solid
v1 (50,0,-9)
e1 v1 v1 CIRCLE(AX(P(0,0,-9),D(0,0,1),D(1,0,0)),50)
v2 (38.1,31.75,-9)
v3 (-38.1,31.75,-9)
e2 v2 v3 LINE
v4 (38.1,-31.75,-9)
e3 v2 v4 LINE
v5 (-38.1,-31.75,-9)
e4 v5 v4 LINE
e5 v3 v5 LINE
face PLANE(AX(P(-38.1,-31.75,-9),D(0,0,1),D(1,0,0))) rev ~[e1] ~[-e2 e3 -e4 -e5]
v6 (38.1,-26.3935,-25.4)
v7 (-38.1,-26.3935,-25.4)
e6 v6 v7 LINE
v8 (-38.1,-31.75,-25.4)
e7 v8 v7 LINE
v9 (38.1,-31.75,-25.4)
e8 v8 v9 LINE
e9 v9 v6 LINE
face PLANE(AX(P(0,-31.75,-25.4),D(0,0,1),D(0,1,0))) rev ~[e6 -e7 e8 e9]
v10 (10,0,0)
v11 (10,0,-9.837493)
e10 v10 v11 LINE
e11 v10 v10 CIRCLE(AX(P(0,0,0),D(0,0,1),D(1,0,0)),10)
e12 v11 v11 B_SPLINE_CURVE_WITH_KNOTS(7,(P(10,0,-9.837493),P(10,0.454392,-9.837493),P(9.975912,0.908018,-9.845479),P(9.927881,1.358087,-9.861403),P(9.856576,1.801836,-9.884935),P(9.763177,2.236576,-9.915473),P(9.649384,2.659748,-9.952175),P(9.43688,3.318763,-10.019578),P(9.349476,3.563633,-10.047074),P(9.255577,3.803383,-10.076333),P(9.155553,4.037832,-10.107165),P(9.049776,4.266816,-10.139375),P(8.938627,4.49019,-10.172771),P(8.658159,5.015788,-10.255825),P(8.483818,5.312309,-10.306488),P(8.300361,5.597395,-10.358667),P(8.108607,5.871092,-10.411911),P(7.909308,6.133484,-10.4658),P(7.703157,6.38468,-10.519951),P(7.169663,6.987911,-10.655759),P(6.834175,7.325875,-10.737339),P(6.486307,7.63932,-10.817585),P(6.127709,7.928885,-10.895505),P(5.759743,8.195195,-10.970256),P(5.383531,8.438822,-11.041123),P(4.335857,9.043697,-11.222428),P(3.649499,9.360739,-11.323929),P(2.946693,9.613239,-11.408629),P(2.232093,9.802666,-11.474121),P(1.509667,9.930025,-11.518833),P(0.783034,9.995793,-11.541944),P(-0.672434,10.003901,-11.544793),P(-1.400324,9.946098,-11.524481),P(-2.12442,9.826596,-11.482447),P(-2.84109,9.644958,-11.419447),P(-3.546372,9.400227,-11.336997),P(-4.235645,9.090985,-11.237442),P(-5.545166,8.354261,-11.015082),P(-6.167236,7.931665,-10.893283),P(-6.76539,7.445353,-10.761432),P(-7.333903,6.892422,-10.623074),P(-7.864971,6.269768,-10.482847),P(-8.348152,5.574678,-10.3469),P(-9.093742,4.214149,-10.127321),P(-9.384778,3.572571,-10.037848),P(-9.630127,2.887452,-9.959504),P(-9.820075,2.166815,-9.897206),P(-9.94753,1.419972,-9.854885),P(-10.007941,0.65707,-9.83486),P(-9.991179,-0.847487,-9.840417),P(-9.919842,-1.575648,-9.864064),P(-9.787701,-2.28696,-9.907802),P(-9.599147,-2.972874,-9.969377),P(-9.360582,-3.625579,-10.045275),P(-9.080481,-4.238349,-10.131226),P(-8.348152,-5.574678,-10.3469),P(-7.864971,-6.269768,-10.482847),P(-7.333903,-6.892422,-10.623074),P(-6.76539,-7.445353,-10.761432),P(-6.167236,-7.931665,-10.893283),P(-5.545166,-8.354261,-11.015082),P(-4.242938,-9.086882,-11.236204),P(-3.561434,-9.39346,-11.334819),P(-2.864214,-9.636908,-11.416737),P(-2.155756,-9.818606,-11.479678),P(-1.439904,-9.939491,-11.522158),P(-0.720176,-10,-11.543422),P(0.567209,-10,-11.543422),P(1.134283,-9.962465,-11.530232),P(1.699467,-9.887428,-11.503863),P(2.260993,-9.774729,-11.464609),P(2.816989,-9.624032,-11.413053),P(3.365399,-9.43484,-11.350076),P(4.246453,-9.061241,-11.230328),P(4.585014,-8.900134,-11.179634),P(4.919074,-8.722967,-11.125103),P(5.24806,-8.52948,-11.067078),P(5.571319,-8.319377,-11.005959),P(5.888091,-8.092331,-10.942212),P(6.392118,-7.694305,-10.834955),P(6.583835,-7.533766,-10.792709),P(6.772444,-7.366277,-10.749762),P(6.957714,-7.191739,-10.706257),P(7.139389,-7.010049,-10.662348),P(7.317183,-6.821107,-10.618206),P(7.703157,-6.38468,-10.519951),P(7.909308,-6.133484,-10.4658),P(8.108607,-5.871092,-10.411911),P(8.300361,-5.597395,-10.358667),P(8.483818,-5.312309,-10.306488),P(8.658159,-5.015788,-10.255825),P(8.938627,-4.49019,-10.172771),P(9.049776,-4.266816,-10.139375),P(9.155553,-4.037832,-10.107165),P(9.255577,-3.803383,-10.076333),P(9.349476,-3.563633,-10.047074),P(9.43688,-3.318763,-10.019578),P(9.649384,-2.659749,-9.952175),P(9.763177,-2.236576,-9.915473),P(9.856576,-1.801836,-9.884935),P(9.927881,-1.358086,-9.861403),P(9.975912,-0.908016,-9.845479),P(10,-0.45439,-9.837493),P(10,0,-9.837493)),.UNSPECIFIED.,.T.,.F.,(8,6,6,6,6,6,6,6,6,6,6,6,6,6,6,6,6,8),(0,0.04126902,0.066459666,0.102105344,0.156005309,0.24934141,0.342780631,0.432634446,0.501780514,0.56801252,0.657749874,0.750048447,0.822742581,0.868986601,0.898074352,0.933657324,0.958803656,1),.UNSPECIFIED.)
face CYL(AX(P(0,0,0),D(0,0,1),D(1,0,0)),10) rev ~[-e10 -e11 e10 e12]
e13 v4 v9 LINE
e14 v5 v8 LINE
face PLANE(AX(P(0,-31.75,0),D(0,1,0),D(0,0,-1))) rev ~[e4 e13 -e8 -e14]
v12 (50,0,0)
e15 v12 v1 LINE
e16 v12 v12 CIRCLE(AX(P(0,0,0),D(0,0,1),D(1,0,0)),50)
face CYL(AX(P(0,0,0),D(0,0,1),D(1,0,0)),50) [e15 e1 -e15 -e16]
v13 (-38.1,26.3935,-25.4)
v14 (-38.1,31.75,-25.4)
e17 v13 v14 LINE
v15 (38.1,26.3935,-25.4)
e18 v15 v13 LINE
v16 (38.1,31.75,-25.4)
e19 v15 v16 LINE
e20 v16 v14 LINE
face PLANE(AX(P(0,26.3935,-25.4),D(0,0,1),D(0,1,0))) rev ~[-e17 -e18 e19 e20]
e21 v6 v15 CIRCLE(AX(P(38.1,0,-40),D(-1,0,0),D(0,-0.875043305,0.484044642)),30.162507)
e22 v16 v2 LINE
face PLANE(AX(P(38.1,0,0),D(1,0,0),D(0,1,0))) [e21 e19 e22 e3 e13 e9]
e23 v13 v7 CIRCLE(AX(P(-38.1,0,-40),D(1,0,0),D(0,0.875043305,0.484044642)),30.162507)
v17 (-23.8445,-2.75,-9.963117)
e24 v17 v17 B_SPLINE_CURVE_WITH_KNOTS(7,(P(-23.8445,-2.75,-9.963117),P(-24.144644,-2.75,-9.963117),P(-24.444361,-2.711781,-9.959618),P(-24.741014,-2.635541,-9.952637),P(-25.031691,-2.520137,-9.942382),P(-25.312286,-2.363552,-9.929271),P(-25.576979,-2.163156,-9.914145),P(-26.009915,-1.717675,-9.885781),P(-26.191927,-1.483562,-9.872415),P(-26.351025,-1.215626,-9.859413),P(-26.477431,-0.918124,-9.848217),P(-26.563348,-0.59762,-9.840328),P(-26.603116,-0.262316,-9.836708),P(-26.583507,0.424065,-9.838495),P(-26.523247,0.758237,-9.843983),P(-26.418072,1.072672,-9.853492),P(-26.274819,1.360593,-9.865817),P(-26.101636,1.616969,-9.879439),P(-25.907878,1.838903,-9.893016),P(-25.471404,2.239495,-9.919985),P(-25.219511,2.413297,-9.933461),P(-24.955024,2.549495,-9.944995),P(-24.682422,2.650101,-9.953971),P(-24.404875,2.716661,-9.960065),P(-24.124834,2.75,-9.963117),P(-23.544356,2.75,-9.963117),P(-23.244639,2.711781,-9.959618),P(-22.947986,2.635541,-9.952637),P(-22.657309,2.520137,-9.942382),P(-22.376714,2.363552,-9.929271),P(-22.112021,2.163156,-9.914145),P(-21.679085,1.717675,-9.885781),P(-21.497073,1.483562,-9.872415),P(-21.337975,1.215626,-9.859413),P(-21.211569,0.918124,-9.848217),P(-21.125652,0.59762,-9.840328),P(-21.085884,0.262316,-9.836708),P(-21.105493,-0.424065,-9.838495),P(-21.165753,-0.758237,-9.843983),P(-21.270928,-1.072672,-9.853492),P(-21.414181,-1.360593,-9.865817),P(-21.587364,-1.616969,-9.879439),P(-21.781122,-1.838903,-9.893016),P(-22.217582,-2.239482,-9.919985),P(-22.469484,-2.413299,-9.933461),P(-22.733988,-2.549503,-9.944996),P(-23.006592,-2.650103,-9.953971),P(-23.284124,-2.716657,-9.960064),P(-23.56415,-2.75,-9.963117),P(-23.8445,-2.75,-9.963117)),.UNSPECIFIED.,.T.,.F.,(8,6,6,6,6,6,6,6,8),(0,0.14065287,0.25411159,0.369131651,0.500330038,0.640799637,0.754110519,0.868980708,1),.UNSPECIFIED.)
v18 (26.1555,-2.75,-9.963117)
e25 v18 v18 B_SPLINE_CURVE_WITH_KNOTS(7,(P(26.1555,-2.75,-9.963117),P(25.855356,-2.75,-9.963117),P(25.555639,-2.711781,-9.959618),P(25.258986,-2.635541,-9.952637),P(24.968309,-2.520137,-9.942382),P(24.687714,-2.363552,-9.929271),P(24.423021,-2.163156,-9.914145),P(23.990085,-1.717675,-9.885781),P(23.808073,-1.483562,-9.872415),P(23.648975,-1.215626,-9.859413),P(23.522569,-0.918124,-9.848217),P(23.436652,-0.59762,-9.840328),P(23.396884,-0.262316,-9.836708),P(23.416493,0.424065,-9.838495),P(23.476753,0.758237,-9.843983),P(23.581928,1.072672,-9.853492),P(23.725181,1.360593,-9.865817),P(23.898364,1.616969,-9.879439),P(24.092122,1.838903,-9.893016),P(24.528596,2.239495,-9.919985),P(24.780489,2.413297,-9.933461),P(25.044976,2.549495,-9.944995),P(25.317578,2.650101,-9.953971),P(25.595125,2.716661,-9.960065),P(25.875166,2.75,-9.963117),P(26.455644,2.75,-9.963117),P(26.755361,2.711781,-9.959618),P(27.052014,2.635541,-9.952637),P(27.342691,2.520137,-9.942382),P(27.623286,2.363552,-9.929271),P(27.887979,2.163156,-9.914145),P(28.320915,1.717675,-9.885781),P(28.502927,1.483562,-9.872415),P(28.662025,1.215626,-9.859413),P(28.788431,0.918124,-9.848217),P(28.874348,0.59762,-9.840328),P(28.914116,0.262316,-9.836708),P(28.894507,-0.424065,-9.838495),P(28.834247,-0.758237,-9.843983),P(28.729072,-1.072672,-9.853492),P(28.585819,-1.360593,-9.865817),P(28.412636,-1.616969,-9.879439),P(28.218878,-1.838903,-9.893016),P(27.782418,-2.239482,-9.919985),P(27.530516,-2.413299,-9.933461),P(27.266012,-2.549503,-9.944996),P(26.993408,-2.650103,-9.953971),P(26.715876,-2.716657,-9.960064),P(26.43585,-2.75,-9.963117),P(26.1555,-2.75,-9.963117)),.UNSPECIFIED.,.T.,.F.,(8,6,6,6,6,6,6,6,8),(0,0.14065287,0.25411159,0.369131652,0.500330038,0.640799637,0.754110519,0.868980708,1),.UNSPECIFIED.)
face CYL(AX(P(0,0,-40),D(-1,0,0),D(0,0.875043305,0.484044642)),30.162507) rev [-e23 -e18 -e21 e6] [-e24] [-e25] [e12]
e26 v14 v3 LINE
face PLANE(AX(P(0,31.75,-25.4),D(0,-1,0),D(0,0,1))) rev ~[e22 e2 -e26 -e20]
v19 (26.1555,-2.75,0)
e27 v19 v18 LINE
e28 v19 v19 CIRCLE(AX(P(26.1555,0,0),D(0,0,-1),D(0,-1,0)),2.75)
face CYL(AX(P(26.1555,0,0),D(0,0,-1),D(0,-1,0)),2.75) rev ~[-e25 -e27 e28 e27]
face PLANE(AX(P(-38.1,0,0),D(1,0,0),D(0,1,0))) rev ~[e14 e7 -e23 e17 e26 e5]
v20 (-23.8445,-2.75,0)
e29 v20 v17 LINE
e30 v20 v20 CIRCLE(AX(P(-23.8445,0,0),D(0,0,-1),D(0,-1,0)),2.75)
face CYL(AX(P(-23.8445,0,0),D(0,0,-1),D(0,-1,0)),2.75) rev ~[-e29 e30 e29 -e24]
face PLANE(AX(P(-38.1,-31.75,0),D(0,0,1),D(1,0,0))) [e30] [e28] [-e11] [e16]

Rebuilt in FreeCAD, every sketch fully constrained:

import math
import FreeCAD as App
import Part
import Sketcher
Q = App.Units.Quantity

doc = App.newDocument("Part")
body = doc.addObject("PartDesign::Body", "Body")

# Sketch on YZ plane
sketch1 = body.newObject("Sketcher::SketchObject", "Sketch")
sketch1.AttachmentSupport = (doc.getObject("YZ_Plane"), [""])
sketch1.MapMode = "FlatFace"
sketch1.addGeometry(Part.LineSegment(App.Vector(32, -25, 0), App.Vector(32, 0, 0)), False)
sketch1.addGeometry(Part.LineSegment(App.Vector(32, 0, 0), App.Vector(-32, 0, 0)), False)
sketch1.addGeometry(Part.LineSegment(App.Vector(-32, 0, 0), App.Vector(-32, -25, 0)), False)
sketch1.addGeometry(Part.LineSegment(App.Vector(-32, -25, 0), App.Vector(-26, -25, 0)), False)
sketch1.addGeometry(Part.ArcOfCircle(Part.Circle(App.Vector(0, -40, 0), App.Vector(0, 0, 1), 30), math.radians(29), math.radians(151)), False)
sketch1.addGeometry(Part.LineSegment(App.Vector(26, -25, 0), App.Vector(32, -25, 0)), False)
sketch1.addConstraint(Sketcher.Constraint("Coincident", 0, 2, 1, 1))
sketch1.addConstraint(Sketcher.Constraint("Coincident", 1, 2, 2, 1))
sketch1.addConstraint(Sketcher.Constraint("Coincident", 2, 2, 3, 1))
sketch1.addConstraint(Sketcher.Constraint("Coincident", 3, 2, 4, 2))
sketch1.addConstraint(Sketcher.Constraint("Coincident", 4, 1, 5, 1))
sketch1.addConstraint(Sketcher.Constraint("Coincident", 5, 2, 0, 1))
sketch1.addConstraint(Sketcher.Constraint("Vertical", 0))
sketch1.addConstraint(Sketcher.Constraint("Horizontal", 1))
sketch1.addConstraint(Sketcher.Constraint("Vertical", 2))
sketch1.addConstraint(Sketcher.Constraint("Horizontal", 3))
sketch1.addConstraint(Sketcher.Constraint("Horizontal", 5))
sketch1.addConstraint(Sketcher.Constraint("Symmetric", 0, 2, 1, 2, -1, 1))
sketch1.addConstraint(Sketcher.Constraint("Symmetric", 3, 2, 4, 1, -2))
sketch1.addConstraint(Sketcher.Constraint("DistanceY", 0, 1, 0, 2, Q("1 in")))
sketch1.addConstraint(Sketcher.Constraint("DistanceX", 1, 2, 1, 1, Q("2.5 in")))
sketch1.addConstraint(Sketcher.Constraint("Radius", 4, Q("1.1875 in")))
sketch1.addConstraint(Sketcher.Constraint("DistanceY", 4, 3, -1, 1, Q("1.5748 in")))
pad1 = body.newObject("PartDesign::Pad", "Pad")
pad1.Profile = sketch1
pad1.Length = Q("3 in")
pad1.Midplane = True

# Sketch on XY plane
sketch2 = body.newObject("Sketcher::SketchObject", "Sketch001")
sketch2.AttachmentSupport = (doc.getObject("XY_Plane"), [""])
sketch2.MapMode = "FlatFace"
sketch2.addGeometry(Part.Circle(App.Vector(0, 0, 0), App.Vector(0, 0, 1), 50), False)
sketch2.addConstraint(Sketcher.Constraint("Coincident", 0, 3, -1, 1))
sketch2.addConstraint(Sketcher.Constraint("Diameter", 0, Q("3.937 in")))
pad2 = body.newObject("PartDesign::Pad", "Pad001")
pad2.Profile = sketch2
pad2.Length = 9
pad2.Reversed = True

# Sketch on XY plane
sketch3 = body.newObject("Sketcher::SketchObject", "Sketch002")
sketch3.AttachmentSupport = (doc.getObject("XY_Plane"), [""])
sketch3.MapMode = "FlatFace"
sketch3.addGeometry(Part.Circle(App.Vector(0, 0, 0), App.Vector(0, 0, 1), 10), False)
sketch3.addConstraint(Sketcher.Constraint("Coincident", 0, 3, -1, 1))
sketch3.addConstraint(Sketcher.Constraint("Diameter", 0, Q("0.7874 in")))
pocket1 = body.newObject("PartDesign::Pocket", "Pocket")
pocket1.Profile = sketch3
pocket1.Type = "ThroughAll"

# Sketch on XY plane
sketch4 = body.newObject("Sketcher::SketchObject", "Sketch003")
sketch4.AttachmentSupport = (doc.getObject("XY_Plane"), [""])
sketch4.MapMode = "FlatFace"
sketch4.addGeometry(Part.Circle(App.Vector(26.2, 0, 0), App.Vector(0, 0, 1), 2.8), False)
sketch4.addGeometry(Part.Circle(App.Vector(-23.8, 0, 0), App.Vector(0, 0, 1), 2.8), False)
sketch4.addConstraint(Sketcher.Constraint("Equal", 0, 1))
sketch4.addConstraint(Sketcher.Constraint("PointOnObject", 0, 3, -1))
sketch4.addConstraint(Sketcher.Constraint("PointOnObject", 1, 3, -1))
sketch4.addConstraint(Sketcher.Constraint("Diameter", 0, Q("5.5 mm")))
sketch4.addConstraint(Sketcher.Constraint("DistanceX", 1, 3, 0, 3, Q("1.9685 in")))
sketch4.addConstraint(Sketcher.Constraint("DistanceX", -1, 1, 0, 3, Q("26.1555 mm")))
doc.recompute()
hole = body.newObject("PartDesign::Hole", "Hole")
hole.Profile = sketch4
hole.ThreadType = "None"
hole.Diameter = 5.5
hole.DepthType = "ThroughAll"

doc.recompute()
